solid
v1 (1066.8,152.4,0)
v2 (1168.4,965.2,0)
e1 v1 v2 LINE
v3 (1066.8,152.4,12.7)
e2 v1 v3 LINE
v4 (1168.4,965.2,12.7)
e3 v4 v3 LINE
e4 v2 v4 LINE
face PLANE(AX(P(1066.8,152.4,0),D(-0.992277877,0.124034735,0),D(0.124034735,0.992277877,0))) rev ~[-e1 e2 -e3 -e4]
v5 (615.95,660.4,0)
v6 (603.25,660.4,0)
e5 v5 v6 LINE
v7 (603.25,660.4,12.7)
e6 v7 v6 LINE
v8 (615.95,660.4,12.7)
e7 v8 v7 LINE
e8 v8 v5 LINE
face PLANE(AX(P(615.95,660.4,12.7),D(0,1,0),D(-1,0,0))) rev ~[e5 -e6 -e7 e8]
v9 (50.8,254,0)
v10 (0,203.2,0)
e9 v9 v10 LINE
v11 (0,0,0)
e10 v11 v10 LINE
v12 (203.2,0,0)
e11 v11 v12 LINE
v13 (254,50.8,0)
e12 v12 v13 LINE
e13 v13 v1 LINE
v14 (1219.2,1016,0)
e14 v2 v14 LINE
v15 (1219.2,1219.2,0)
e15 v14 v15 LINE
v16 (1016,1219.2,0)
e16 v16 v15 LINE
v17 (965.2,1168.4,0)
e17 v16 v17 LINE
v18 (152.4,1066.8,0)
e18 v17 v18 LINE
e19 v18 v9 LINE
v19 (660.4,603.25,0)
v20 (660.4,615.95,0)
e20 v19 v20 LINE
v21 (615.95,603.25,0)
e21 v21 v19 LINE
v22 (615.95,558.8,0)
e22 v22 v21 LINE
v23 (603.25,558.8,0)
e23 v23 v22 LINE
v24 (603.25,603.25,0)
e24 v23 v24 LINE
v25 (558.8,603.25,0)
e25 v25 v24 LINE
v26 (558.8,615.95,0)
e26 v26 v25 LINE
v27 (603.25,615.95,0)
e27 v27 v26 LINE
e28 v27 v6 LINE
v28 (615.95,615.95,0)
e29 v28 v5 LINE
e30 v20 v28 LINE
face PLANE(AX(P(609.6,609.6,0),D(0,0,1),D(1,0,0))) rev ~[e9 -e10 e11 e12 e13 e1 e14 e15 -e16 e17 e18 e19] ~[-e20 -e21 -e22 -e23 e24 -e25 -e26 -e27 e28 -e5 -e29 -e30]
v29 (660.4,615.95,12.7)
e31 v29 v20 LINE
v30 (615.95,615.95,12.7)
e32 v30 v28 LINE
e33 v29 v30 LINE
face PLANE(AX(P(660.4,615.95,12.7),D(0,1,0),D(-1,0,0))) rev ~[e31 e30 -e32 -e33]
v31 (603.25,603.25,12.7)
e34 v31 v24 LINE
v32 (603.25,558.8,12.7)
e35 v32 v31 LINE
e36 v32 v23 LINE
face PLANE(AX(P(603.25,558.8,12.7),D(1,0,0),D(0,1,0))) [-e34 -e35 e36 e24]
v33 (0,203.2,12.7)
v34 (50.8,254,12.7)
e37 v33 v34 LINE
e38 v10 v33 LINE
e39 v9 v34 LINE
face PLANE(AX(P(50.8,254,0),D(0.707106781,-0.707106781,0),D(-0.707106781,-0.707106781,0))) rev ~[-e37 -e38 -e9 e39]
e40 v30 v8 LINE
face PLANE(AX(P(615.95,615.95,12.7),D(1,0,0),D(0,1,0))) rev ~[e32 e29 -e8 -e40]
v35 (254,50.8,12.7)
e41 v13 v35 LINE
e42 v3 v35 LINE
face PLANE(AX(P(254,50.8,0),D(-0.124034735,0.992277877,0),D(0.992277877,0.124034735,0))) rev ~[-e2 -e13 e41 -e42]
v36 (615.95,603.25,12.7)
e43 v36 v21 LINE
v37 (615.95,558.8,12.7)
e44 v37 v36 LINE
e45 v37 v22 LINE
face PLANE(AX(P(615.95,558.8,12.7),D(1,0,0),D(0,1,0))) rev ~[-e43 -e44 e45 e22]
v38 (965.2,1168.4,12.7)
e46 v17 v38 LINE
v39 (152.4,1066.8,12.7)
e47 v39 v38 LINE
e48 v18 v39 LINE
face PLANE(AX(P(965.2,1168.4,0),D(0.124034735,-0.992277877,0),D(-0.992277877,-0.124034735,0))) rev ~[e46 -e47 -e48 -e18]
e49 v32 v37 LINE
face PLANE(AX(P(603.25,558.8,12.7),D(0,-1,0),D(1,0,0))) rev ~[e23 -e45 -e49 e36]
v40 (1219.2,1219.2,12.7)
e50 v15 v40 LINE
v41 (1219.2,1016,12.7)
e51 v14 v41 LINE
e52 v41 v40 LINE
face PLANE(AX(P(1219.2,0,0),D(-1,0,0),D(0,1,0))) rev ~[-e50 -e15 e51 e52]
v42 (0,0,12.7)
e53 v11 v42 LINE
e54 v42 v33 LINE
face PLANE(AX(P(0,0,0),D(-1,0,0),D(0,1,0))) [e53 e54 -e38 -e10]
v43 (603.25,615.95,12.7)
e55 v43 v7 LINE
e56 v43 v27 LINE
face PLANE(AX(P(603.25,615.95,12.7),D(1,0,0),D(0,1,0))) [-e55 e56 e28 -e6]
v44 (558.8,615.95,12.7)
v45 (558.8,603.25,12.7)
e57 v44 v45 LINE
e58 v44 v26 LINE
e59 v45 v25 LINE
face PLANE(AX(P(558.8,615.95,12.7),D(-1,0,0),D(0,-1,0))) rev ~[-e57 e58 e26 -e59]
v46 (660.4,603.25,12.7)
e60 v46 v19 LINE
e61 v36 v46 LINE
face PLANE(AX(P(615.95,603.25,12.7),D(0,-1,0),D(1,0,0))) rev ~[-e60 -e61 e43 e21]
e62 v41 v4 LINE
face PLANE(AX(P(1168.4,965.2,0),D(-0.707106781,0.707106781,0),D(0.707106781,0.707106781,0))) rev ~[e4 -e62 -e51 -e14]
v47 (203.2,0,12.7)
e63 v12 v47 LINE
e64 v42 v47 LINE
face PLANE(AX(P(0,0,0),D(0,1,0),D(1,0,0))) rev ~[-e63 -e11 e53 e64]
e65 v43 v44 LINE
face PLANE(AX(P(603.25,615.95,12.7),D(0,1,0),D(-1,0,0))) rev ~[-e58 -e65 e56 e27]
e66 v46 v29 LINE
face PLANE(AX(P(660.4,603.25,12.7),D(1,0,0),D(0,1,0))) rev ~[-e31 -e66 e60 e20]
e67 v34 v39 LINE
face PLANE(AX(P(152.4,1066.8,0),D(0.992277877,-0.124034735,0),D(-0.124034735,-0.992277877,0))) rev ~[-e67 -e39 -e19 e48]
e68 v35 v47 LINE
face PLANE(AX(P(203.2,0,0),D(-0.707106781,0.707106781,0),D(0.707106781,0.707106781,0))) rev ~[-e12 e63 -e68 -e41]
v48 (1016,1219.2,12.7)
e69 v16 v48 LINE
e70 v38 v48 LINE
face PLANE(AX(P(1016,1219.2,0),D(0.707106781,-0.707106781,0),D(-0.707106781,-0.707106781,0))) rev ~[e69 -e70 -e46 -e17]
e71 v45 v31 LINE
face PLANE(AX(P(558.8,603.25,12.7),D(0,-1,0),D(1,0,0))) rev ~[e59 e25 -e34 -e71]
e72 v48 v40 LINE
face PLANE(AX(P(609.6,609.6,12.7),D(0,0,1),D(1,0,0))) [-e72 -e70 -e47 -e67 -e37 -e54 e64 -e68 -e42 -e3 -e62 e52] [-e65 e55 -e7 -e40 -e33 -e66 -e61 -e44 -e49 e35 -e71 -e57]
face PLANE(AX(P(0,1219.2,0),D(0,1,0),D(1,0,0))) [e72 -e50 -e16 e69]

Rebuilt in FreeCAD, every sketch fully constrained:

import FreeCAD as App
import Part
import Sketcher

V = App.Vector
Q = App.Units.Quantity


def add_polygon(sketch, points):
    """Adds a closed chain of lines whose ends are joined by coincident constraints."""
    first, n = sketch.GeometryCount, len(points)
    for a, b in zip(points, points[1:] + points[:1]):
        sketch.addGeometry(Part.LineSegment(App.Vector(*a, 0), App.Vector(*b, 0)), False)
    for i in range(n):
        sketch.addConstraint(Sketcher.Constraint("Coincident", first + i, 2, first + (i + 1) % n, 1))

doc = App.newDocument("Part")
body = doc.addObject("PartDesign::Body", "Body")

sketch1 = body.newObject("Sketcher::SketchObject", "Sketch")
sketch1.AttachmentSupport = (doc.getObject("XY_Plane"), [""])
sketch1.MapMode = "FlatFace"
add_polygon(sketch1, [(0, 1219.2), (0, 0), (1219.2, 0), (1219.2, 1219.2)])
sketch1.addConstraint(Sketcher.Constraint("Vertical", 0))
sketch1.addConstraint(Sketcher.Constraint("Horizontal", 1))
sketch1.addConstraint(Sketcher.Constraint("Vertical", 2))
sketch1.addConstraint(Sketcher.Constraint("Horizontal", 3))
sketch1.addConstraint(Sketcher.Constraint("Coincident", 0, 2, -1, 1))
sketch1.addConstraint(Sketcher.Constraint("Equal", 3, 0))
sketch1.addConstraint(Sketcher.Constraint("DistanceX", 1, 1, 1, 2, Q("48 in")))
pad1 = body.newObject("PartDesign::Pad", "Pad")
pad1.Profile = sketch1
pad1.Length = Q("0.5 in")

sketch2 = body.newObject("Sketcher::SketchObject", "Sketch001")
sketch2.AttachmentSupport = (doc.getObject("XY_Plane"), [""])
sketch2.MapMode = "FlatFace"
add_polygon(sketch2, [(50.8, 254), (0, 203.2), (0, 1219.2), (1016, 1219.2), (965.2, 1168.4), (152.4, 1066.8)])
sketch2.addConstraint(Sketcher.Constraint("Vertical", 1))
sketch2.addConstraint(Sketcher.Constraint("Horizontal", 2))
sketch2.addConstraint(Sketcher.Constraint("PointOnObject", 0, 2, -2))
sketch2.addConstraint(Sketcher.Constraint("Parallel", 0, 3))
sketch2.addConstraint(Sketcher.Constraint("Equal", 2, 1))
sketch2.addConstraint(Sketcher.Constraint("Equal", 0, 3))
sketch2.addConstraint(Sketcher.Constraint("Equal", 4, 5))
sketch2.addConstraint(Sketcher.Constraint("DistanceX", 2, 1, 2, 2, Q("40 in")))
sketch2.addConstraint(Sketcher.Constraint("DistanceY", -1, 1, 0, 2, Q("8 in")))
sketch2.addConstraint(Sketcher.Constraint("DistanceX", -1, 1, 3, 2, Q("38 in")))
sketch2.addConstraint(Sketcher.Constraint("DistanceY", -1, 1, 3, 2, Q("46 in")))
sketch2.addConstraint(Sketcher.Constraint("DistanceX", -1, 1, 4, 2, Q("6 in")))
pocket1 = body.newObject("PartDesign::Pocket", "Pocket")
pocket1.Profile = sketch2
pocket1.Type = "ThroughAll"
pocket1.Reversed = True

sketch3 = body.newObject("Sketcher::SketchObject", "Sketch002")
sketch3.AttachmentSupport = (doc.getObject("XY_Plane"), [""])
sketch3.MapMode = "FlatFace"
add_polygon(sketch3, [(254, 50.8), (1066.8, 152.4), (1168.4, 965.2), (1219.2, 1016), (1219.2, 0), (203.2, 0)])
sketch3.addConstraint(Sketcher.Constraint("Vertical", 3))
sketch3.addConstraint(Sketcher.Constraint("Horizontal", 4))
sketch3.addConstraint(Sketcher.Constraint("PointOnObject", 3, 2, -1))
sketch3.addConstraint(Sketcher.Constraint("Parallel", 2, 5))
sketch3.addConstraint(Sketcher.Constraint("Equal", 4, 3))
sketch3.addConstraint(Sketcher.Constraint("Equal", 0, 1))
sketch3.addConstraint(Sketcher.Constraint("Equal", 2, 5))
sketch3.addConstraint(Sketcher.Constraint("DistanceX", 4, 2, 4, 1, Q("40 in")))
sketch3.addConstraint(Sketcher.Constraint("DistanceX", -1, 1, 0, 2, Q("42 in")))
sketch3.addConstraint(Sketcher.Constraint("DistanceY", -1, 1, 0, 2, Q("6 in")))
sketch3.addConstraint(Sketcher.Constraint("DistanceX", -1, 1, 1, 2, Q("46 in")))
sketch3.addConstraint(Sketcher.Constraint("DistanceY", -1, 1, 1, 2, Q("38 in")))
pocket2 = body.newObject("PartDesign::Pocket", "Pocket001")
pocket2.Profile = sketch3
pocket2.Type = "ThroughAll"
pocket2.Reversed = True

sketch4 = body.newObject("Sketcher::SketchObject", "Sketch003")
sketch4.AttachmentSupport = (doc.getObject("XY_Plane"), [""])
sketch4.MapMode = "FlatFace"
sketch4.AttachmentOffset = App.Placement(V(0, 0, 0.5 * 25.4), App.Rotation())
add_polygon(sketch4, [(615.95, 558.8), (615.95, 603.25), (660.4, 603.25), (660.4, 615.95), (615.95, 615.95), (615.95, 660.4), (603.25, 660.4), (603.25, 615.95), (558.8, 615.95), (558.8, 603.25), (603.25, 603.25), (603.25, 558.8)])
sketch4.addConstraint(Sketcher.Constraint("Vertical", 0))
sketch4.addConstraint(Sketcher.Constraint("Horizontal", 1))
sketch4.addConstraint(Sketcher.Constraint("Vertical", 2))
sketch4.addConstraint(Sketcher.Constraint("Horizontal", 3))
sketch4.addConstraint(Sketcher.Constraint("Vertical", 4))
sketch4.addConstraint(Sketcher.Constraint("Horizontal", 5))
sketch4.addConstraint(Sketcher.Constraint("Vertical", 6))
sketch4.addConstraint(Sketcher.Constraint("Horizontal", 7))
sketch4.addConstraint(Sketcher.Constraint("Vertical", 8))
sketch4.addConstraint(Sketcher.Constraint("Horizontal", 9))
sketch4.addConstraint(Sketcher.Constraint("Vertical", 10))
sketch4.addConstraint(Sketcher.Constraint("Horizontal", 11))
sketch4.addConstraint(Sketcher.Constraint("Horizontal", 3, 2, 6, 2))
sketch4.addConstraint(Sketcher.Constraint("Horizontal", 1, 2, 8, 2))
sketch4.addConstraint(Sketcher.Constraint("Vertical", 0, 2, 3, 2))
sketch4.addConstraint(Sketcher.Constraint("Vertical", 6, 2, 9, 2))
sketch4.addConstraint(Sketcher.Constraint("Equal", 3, 7))
sketch4.addConstraint(Sketcher.Constraint("Equal", 9, 0))
sketch4.addConstraint(Sketcher.Constraint("Equal", 11, 2))
sketch4.addConstraint(Sketcher.Constraint("Equal", 0, 4))
sketch4.addConstraint(Sketcher.Constraint("DistanceX", 5, 2, 5, 1, Q("0.5 in")))
sketch4.addConstraint(Sketcher.Constraint("DistanceX", -1, 1, 1, 2, Q("26 in")))
sketch4.addConstraint(Sketcher.Constraint("DistanceY", -1, 1, 4, 2, Q("26 in")))
sketch4.addConstraint(Sketcher.Constraint("DistanceX", -1, 1, 7, 2, Q("22 in")))
pocket3 = body.newObject("PartDesign::Pocket", "Pocket002")
pocket3.Profile = sketch4
pocket3.Type = "ThroughAll"

doc.recompute()
